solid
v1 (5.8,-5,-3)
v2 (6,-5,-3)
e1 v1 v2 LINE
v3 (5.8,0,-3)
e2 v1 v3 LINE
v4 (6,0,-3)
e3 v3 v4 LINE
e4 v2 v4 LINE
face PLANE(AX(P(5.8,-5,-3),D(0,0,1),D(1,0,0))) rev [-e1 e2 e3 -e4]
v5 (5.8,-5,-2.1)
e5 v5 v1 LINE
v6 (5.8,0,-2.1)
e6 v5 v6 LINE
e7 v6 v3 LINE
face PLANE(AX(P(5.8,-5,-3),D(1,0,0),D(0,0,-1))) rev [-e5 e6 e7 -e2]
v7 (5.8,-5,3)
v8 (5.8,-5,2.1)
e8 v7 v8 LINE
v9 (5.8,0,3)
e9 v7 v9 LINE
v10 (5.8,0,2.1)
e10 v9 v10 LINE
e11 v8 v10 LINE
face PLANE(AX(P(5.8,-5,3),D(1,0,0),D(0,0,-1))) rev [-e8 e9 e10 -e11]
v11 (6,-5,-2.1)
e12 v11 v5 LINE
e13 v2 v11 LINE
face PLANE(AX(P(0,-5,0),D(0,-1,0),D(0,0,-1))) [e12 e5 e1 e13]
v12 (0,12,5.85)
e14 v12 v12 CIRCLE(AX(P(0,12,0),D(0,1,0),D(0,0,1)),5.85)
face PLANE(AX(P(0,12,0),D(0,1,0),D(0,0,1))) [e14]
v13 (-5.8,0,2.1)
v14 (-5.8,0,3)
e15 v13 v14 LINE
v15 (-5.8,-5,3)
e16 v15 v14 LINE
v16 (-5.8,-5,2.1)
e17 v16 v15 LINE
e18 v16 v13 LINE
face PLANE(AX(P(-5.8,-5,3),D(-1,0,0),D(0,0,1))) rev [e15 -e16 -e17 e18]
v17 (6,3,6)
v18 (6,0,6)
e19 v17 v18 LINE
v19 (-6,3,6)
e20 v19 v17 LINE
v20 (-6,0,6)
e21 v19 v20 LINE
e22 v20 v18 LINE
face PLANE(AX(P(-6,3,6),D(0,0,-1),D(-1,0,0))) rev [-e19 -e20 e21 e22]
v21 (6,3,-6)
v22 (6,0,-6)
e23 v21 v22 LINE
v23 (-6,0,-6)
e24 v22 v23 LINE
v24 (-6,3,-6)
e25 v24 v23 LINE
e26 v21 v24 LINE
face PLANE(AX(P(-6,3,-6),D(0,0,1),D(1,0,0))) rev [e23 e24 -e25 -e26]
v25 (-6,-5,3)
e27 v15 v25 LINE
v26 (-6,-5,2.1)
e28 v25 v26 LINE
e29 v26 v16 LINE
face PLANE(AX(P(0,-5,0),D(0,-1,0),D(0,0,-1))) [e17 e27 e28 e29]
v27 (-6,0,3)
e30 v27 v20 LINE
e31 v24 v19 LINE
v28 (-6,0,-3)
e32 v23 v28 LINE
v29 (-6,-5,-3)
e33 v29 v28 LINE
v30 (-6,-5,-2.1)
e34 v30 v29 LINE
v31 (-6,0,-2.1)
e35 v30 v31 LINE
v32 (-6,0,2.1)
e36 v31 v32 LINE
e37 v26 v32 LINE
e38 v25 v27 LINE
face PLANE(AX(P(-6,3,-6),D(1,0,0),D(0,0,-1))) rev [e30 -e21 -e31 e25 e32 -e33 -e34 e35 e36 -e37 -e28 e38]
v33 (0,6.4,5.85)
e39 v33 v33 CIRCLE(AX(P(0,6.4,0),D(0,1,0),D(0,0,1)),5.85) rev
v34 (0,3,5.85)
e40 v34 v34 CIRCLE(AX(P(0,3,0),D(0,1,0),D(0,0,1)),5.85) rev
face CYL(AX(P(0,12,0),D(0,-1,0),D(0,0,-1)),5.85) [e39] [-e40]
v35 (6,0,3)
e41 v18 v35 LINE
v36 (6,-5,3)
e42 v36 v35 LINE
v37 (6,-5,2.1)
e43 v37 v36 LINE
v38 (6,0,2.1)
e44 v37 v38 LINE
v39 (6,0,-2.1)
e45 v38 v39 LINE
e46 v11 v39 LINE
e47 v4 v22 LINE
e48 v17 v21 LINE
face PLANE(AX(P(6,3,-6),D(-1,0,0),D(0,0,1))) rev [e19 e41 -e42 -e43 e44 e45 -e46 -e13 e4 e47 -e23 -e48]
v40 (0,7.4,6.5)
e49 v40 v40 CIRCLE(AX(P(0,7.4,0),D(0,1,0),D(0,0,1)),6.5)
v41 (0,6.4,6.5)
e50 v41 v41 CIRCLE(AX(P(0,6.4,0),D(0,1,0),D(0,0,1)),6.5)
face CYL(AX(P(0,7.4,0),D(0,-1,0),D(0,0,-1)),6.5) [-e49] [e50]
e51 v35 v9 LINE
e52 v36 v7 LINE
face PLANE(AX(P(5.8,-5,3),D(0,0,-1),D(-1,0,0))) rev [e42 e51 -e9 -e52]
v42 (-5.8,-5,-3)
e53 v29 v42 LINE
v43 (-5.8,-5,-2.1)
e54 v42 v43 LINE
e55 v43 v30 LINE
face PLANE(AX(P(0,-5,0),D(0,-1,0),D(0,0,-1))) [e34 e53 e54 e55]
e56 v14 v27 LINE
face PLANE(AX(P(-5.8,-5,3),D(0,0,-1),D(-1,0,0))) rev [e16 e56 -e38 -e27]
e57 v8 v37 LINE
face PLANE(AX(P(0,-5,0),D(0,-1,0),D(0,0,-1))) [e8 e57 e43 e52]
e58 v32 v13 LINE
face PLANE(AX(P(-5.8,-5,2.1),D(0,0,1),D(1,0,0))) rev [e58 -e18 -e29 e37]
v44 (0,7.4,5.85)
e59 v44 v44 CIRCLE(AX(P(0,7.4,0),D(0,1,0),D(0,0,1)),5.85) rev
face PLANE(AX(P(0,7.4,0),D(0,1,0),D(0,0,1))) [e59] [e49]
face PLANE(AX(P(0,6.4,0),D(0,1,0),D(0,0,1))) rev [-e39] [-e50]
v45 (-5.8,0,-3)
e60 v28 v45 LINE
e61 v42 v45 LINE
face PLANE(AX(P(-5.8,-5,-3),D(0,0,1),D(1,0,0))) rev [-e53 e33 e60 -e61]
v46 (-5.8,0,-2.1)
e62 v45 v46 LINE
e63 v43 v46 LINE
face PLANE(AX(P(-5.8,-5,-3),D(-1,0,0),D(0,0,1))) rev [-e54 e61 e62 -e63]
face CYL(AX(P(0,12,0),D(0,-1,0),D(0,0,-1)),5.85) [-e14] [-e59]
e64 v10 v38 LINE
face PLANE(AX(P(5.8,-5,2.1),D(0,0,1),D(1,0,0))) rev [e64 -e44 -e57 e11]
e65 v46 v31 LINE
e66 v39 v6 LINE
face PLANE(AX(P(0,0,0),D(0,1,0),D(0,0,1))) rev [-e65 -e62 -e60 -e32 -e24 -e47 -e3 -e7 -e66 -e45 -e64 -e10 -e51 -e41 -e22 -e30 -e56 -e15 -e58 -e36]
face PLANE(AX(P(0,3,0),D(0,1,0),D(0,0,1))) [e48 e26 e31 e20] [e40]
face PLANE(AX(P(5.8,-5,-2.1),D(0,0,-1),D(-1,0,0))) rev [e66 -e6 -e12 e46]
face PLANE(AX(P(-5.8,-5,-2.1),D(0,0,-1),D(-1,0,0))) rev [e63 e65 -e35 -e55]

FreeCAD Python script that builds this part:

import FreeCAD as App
import Part
import Sketcher
from FreeCAD import Vector

doc = App.newDocument("Part")
body = doc.addObject("PartDesign::Body", "Body")

# Sketch on XZ plane
sketch1 = body.newObject("Sketcher::SketchObject", "Sketch")
sketch1.AttachmentSupport = (doc.getObject("XZ_Plane"), [""])
sketch1.MapMode = "FlatFace"
sketch1.addGeometry([
    Part.LineSegment(Vector(-6, -6, 0), Vector(-6, 6, 0)),
    Part.LineSegment(Vector(-6, 6, 0), Vector(6, 6, 0)),
    Part.LineSegment(Vector(6, 6, 0), Vector(6, -6, 0)),
    Part.LineSegment(Vector(6, -6, 0), Vector(-6, -6, 0)),
], False)
sketch1.addConstraint([
    Sketcher.Constraint("Coincident", 0, 2, 1, 1),
    Sketcher.Constraint("Coincident", 1, 2, 2, 1),
    Sketcher.Constraint("Coincident", 2, 2, 3, 1),
    Sketcher.Constraint("Coincident", 3, 2, 0, 1),
    Sketcher.Constraint("Vertical", 0),
    Sketcher.Constraint("Horizontal", 1),
    Sketcher.Constraint("Vertical", 2),
    Sketcher.Constraint("Horizontal", 3),
    Sketcher.Constraint("Symmetric", 0, 2, 2, 2, -1, 1),
    Sketcher.Constraint("Equal", 3, 0),
    Sketcher.Constraint("DistanceX", 1, 1, 1, 2, 12.0),
])
pad1 = body.newObject("PartDesign::Pad", "Pad")
pad1.Profile = sketch1
pad1.Length = 3
pad1.Reversed = True

# Sketch on XZ plane
sketch2 = body.newObject("Sketcher::SketchObject", "Sketch001")
sketch2.AttachmentSupport = (doc.getObject("XZ_Plane"), [""])
sketch2.MapMode = "FlatFace"
sketch2.AttachmentOffset = App.Placement(Vector(0, 0, -3), App.Rotation())
sketch2.addGeometry([
    Part.LineSegment(Vector(-2, -2, 0), Vector(-2, 2, 0)),
    Part.LineSegment(Vector(-2, 2, 0), Vector(2, 2, 0)),
    Part.LineSegment(Vector(2, 2, 0), Vector(2, -2, 0)),
    Part.LineSegment(Vector(2, -2, 0), Vector(-2, -2, 0)),
], False)
sketch2.addConstraint([
    Sketcher.Constraint("Coincident", 0, 2, 1, 1),
    Sketcher.Constraint("Coincident", 1, 2, 2, 1),
    Sketcher.Constraint("Coincident", 2, 2, 3, 1),
    Sketcher.Constraint("Coincident", 3, 2, 0, 1),
    Sketcher.Constraint("Vertical", 0),
    Sketcher.Constraint("Horizontal", 1),
    Sketcher.Constraint("Vertical", 2),
    Sketcher.Constraint("Horizontal", 3),
    Sketcher.Constraint("Symmetric", 0, 2, 2, 2, -1, 1),
    Sketcher.Constraint("Equal", 3, 0),
    Sketcher.Constraint("DistanceX", 1, 1, 1, 2, 5.0),
])
pad2 = body.newObject("PartDesign::Pad", "Pad001")
pad2.Profile = sketch2
pad2.Length = 3.4
pad2.Reversed = True

# Sketch on XZ plane
sketch3 = body.newObject("Sketcher::SketchObject", "Sketch002")
sketch3.AttachmentSupport = (doc.getObject("XZ_Plane"), [""])
sketch3.MapMode = "FlatFace"
sketch3.AttachmentOffset = App.Placement(Vector(0, 0, -6.4), App.Rotation())
sketch3.addGeometry(Part.Circle(Vector(0, 0, 0), Vector(0, 0, 1), 6), False)
sketch3.addConstraint([
    Sketcher.Constraint("Coincident", 0, 3, -1, 1),
    Sketcher.Constraint("Diameter", 0, 13.0),
])
pad3 = body.newObject("PartDesign::Pad", "Pad002")
pad3.Profile = sketch3
pad3.Length = 1
pad3.Reversed = True

# Sketch on XZ plane
sketch4 = body.newObject("Sketcher::SketchObject", "Sketch003")
sketch4.AttachmentSupport = (doc.getObject("XZ_Plane"), [""])
sketch4.MapMode = "FlatFace"
sketch4.addGeometry(Part.Circle(Vector(0, 0, 0), Vector(0, 0, 1), 6), False)
sketch4.addConstraint([
    Sketcher.Constraint("Coincident", 0, 3, -1, 1),
    Sketcher.Constraint("Diameter", 0, 11.7),
])
pad4 = body.newObject("PartDesign::Pad", "Pad003")
pad4.Profile = sketch4
pad4.Length = 12
pad4.Reversed = True

# Sketch on XZ plane
sketch5 = body.newObject("Sketcher::SketchObject", "Sketch004")
sketch5.AttachmentSupport = (doc.getObject("XZ_Plane"), [""])
sketch5.MapMode = "FlatFace"
sketch5.addGeometry([
    Part.LineSegment(Vector(5.8, 3, 0), Vector(5.8, 2.1, 0)),  # 0
    Part.LineSegment(Vector(5.8, 2.1, 0), Vector(6, 2.1, 0)),  # 1
    Part.LineSegment(Vector(6, 2.1, 0), Vector(6, 3, 0)),  # 2
    Part.LineSegment(Vector(6, 3, 0), Vector(5.8, 3, 0)),  # 3
    Part.LineSegment(Vector(5.8, -2.1, 0), Vector(5.8, -3, 0)),  # 4
    Part.LineSegment(Vector(5.8, -3, 0), Vector(6, -3, 0)),  # 5
    Part.LineSegment(Vector(6, -3, 0), Vector(6, -2.1, 0)),  # 6
    Part.LineSegment(Vector(6, -2.1, 0), Vector(5.8, -2.1, 0)),  # 7
    Part.LineSegment(Vector(-6, -2.1, 0), Vector(-6, -3, 0)),  # 8
    Part.LineSegment(Vector(-6, -3, 0), Vector(-5.8, -3, 0)),  # 9
    Part.LineSegment(Vector(-5.8, -3, 0), Vector(-5.8, -2.1, 0)),  # 10
    Part.LineSegment(Vector(-5.8, -2.1, 0), Vector(-6, -2.1, 0)),  # 11
    Part.LineSegment(Vector(-6, 3, 0), Vector(-6, 2.1, 0)),  # 12
    Part.LineSegment(Vector(-6, 2.1, 0), Vector(-5.8, 2.1, 0)),  # 13
    Part.LineSegment(Vector(-5.8, 2.1, 0), Vector(-5.8, 3, 0)),  # 14
    Part.LineSegment(Vector(-5.8, 3, 0), Vector(-6, 3, 0)),  # 15
], False)
sketch5.addConstraint([
    Sketcher.Constraint("Coincident", 0, 2, 1, 1),
    Sketcher.Constraint("Coincident", 1, 2, 2, 1),
    Sketcher.Constraint("Coincident", 2, 2, 3, 1),
    Sketcher.Constraint("Coincident", 3, 2, 0, 1),
    Sketcher.Constraint("Coincident", 4, 2, 5, 1),
    Sketcher.Constraint("Coincident", 5, 2, 6, 1),
    Sketcher.Constraint("Coincident", 6, 2, 7, 1),
    Sketcher.Constraint("Coincident", 7, 2, 4, 1),
    Sketcher.Constraint("Coincident", 8, 2, 9, 1),
    Sketcher.Constraint("Coincident", 9, 2, 10, 1),
    Sketcher.Constraint("Coincident", 10, 2, 11, 1),
    Sketcher.Constraint("Coincident", 11, 2, 8, 1),
    Sketcher.Constraint("Coincident", 12, 2, 13, 1),
    Sketcher.Constraint("Coincident", 13, 2, 14, 1),
    Sketcher.Constraint("Coincident", 14, 2, 15, 1),
    Sketcher.Constraint("Coincident", 15, 2, 12, 1),
    Sketcher.Constraint("Vertical", 0),
    Sketcher.Constraint("Horizontal", 1),
    Sketcher.Constraint("Vertical", 2),
    Sketcher.Constraint("Horizontal", 3),
    Sketcher.Constraint("Vertical", 4),
    Sketcher.Constraint("Horizontal", 5),
    Sketcher.Constraint("Vertical", 6),
    Sketcher.Constraint("Horizontal", 7),
    Sketcher.Constraint("Vertical", 8),
    Sketcher.Constraint("Horizontal", 9),
    Sketcher.Constraint("Vertical", 10),
    Sketcher.Constraint("Horizontal", 11),
    Sketcher.Constraint("Vertical", 12),
    Sketcher.Constraint("Horizontal", 13),
    Sketcher.Constraint("Vertical", 14),
    Sketcher.Constraint("Horizontal", 15),
    Sketcher.Constraint("Symmetric", 2, 2, 8, 2, -1, 1),
    Sketcher.Constraint("Symmetric", 0, 2, 10, 2, -1, 1),
    Sketcher.Constraint("Symmetric", 6, 2, 12, 2, -1, 1),
    Sketcher.Constraint("Symmetric", 4, 2, 14, 2, -1, 1),
    Sketcher.Constraint("Symmetric", 5, 2, 8, 2, -2),
    Sketcher.Constraint("Symmetric", 7, 2, 10, 2, -2),
    Sketcher.Constraint("DistanceX", 1, 1, 1, 2, 0.2),
    Sketcher.Constraint("DistanceY", 0, 2, 0, 1, 0.9),
    Sketcher.Constraint("DistanceX", -1, 1, 1, 2, 6.0),
    Sketcher.Constraint("DistanceY", -1, 1, 2, 2, 3.0),
])
pad5 = body.newObject("PartDesign::Pad", "Pad004")
pad5.Profile = sketch5
pad5.Length = 5

doc.recompute()
